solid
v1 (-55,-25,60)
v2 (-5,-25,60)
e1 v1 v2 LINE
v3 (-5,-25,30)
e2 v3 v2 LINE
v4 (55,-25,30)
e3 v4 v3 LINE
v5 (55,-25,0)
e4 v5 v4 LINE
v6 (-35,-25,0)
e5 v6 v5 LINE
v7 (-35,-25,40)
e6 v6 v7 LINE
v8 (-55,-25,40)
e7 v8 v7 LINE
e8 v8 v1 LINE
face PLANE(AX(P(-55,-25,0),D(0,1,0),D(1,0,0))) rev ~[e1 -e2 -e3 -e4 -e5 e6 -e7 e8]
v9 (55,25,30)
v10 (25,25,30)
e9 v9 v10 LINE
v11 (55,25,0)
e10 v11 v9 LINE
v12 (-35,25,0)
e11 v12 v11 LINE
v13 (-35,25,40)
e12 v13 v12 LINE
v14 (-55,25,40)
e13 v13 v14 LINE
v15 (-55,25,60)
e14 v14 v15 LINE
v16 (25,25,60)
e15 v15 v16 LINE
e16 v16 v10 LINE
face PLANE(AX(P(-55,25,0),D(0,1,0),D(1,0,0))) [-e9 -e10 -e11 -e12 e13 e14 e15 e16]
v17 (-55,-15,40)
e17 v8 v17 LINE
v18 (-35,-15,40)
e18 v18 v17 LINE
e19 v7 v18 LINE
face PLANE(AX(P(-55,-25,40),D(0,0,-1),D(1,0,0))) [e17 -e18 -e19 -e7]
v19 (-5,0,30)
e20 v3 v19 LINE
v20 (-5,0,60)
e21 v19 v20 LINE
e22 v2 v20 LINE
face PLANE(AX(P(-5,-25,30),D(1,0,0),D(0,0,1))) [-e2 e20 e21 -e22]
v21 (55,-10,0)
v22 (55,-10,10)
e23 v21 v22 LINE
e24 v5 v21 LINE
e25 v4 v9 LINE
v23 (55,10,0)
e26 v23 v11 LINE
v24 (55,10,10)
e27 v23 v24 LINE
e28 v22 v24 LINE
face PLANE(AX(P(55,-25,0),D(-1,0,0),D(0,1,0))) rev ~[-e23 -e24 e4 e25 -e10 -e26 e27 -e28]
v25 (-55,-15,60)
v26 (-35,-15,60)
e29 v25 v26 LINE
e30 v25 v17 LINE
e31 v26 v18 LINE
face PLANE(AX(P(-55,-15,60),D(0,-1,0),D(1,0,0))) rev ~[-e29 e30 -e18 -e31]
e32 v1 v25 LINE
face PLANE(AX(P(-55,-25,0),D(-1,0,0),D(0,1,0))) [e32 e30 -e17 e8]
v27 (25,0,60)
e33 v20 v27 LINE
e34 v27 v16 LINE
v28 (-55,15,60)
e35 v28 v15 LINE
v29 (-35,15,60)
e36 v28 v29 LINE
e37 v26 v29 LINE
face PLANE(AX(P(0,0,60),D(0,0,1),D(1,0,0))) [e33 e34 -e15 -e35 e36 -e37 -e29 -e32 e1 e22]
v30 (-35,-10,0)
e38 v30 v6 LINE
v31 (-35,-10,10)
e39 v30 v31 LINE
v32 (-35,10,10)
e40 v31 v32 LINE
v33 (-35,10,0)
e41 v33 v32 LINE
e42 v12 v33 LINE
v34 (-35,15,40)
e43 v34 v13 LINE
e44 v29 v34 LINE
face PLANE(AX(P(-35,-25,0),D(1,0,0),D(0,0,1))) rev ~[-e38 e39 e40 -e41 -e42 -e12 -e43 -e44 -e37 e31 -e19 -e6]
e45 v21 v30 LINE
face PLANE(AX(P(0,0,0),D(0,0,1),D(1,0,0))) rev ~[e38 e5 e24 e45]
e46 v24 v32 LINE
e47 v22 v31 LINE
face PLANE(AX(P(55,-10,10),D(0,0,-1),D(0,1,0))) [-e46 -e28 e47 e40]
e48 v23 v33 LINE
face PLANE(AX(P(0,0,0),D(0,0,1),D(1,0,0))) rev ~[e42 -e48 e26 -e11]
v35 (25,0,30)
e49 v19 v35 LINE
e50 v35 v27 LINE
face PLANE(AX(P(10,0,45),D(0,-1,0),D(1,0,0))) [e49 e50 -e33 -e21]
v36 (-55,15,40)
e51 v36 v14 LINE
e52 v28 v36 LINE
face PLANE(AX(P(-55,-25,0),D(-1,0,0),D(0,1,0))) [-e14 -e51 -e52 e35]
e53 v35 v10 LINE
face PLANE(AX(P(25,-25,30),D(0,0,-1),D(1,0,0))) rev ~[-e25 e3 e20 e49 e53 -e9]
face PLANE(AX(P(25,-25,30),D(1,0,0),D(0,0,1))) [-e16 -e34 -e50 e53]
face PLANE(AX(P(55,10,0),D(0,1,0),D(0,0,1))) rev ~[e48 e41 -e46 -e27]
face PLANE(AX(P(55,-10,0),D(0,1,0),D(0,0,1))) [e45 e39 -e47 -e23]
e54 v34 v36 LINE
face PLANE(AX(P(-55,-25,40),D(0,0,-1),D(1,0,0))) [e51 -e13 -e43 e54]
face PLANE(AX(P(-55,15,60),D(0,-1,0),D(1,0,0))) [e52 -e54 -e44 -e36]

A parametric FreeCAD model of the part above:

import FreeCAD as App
import Part
import Sketcher
from FreeCAD import Vector

doc = App.newDocument("Part")
params = doc.addObject("Spreadsheet::Sheet", "Params")
for row, (alias, value) in enumerate([
    ("sketch1_width", "110 mm"),
    ("sketch1_height", "50 mm"),
    ("pad1_length", "60 mm"),
    ("sketch2_width", "30 mm"),
    ("sketch3_width", "20 mm"),
    ("sketch3_height", "40 mm"),
    ("sketch4_width", "30 mm"),
    ("pocket3_length", "25 mm"),
    ("sketch5_width", "20 mm"),
    ("sketch5_height", "10 mm"),
    ("sketch6_width", "20 mm"),
    ("sketch6_height", "30 mm"),
], start=1):
    params.set(f"A{row}", alias)
    params.set(f"B{row}", "=" + value)
    params.setAlias(f"B{row}", alias)

body = doc.addObject("PartDesign::Body", "Body")

sketch1 = body.newObject("Sketcher::SketchObject", "Sketch")
sketch1.AttachmentSupport = (doc.getObject("XY_Plane"), [""])
sketch1.MapMode = "FlatFace"
sketch1.addGeometry([
    Part.LineSegment(Vector(-55, 25, 0), Vector(-55, -25, 0)),
    Part.LineSegment(Vector(-55, -25, 0), Vector(55, -25, 0)),
    Part.LineSegment(Vector(55, -25, 0), Vector(55, 25, 0)),
    Part.LineSegment(Vector(55, 25, 0), Vector(-55, 25, 0)),
], False)
sketch1.addConstraint([
    Sketcher.Constraint("Coincident", 0, 2, 1, 1),
    Sketcher.Constraint("Coincident", 1, 2, 2, 1),
    Sketcher.Constraint("Coincident", 2, 2, 3, 1),
    Sketcher.Constraint("Coincident", 3, 2, 0, 1),
    Sketcher.Constraint("Vertical", 0),
    Sketcher.Constraint("Horizontal", 1),
    Sketcher.Constraint("Vertical", 2),
    Sketcher.Constraint("Horizontal", 3),
    Sketcher.Constraint("Symmetric", 0, 2, 2, 2, -1, 1),
    Sketcher.Constraint("DistanceX", 1, 1, 1, 2, 110.0),
    Sketcher.Constraint("DistanceY", 0, 2, 0, 1, 50.0),
])
sketch1.setExpression("Constraints[9]", "Params.sketch1_width")
sketch1.setExpression("Constraints[10]", "Params.sketch1_height")
pad1 = body.newObject("PartDesign::Pad", "Pad")
pad1.Profile = sketch1
pad1.setExpression("Length", "Params.pad1_length")

sketch2 = body.newObject("Sketcher::SketchObject", "Sketch001")
sketch2.AttachmentSupport = (doc.getObject("XZ_Plane"), [""])
sketch2.MapMode = "FlatFace"
sketch2.AttachmentOffset = App.Placement(Vector(0, 0, 25), App.Rotation())
sketch2.addGeometry([
    Part.LineSegment(Vector(25, 60, 0), Vector(25, 30, 0)),
    Part.LineSegment(Vector(25, 30, 0), Vector(55, 30, 0)),
    Part.LineSegment(Vector(55, 30, 0), Vector(55, 60, 0)),
    Part.LineSegment(Vector(55, 60, 0), Vector(25, 60, 0)),
], False)
sketch2.addConstraint([
    Sketcher.Constraint("Coincident", 0, 2, 1, 1),
    Sketcher.Constraint("Coincident", 1, 2, 2, 1),
    Sketcher.Constraint("Coincident", 2, 2, 3, 1),
    Sketcher.Constraint("Coincident", 3, 2, 0, 1),
    Sketcher.Constraint("Vertical", 0),
    Sketcher.Constraint("Horizontal", 1),
    Sketcher.Constraint("Vertical", 2),
    Sketcher.Constraint("Horizontal", 3),
    Sketcher.Constraint("Equal", 3, 0),
    Sketcher.Constraint("DistanceX", 1, 1, 1, 2, 30.0),
    Sketcher.Constraint("DistanceX", -1, 1, 0, 2, 25.0),
    Sketcher.Constraint("DistanceY", -1, 1, 0, 2, 30.0),
])
sketch2.setExpression("Constraints[9]", "Params.sketch2_width")
pocket1 = body.newObject("PartDesign::Pocket", "Pocket")
pocket1.Profile = sketch2
pocket1.Type = "ThroughAll"

sketch3 = body.newObject("Sketcher::SketchObject", "Sketch002")
sketch3.AttachmentSupport = (doc.getObject("XZ_Plane"), [""])
sketch3.MapMode = "FlatFace"
sketch3.AttachmentOffset = App.Placement(Vector(0, 0, 25), App.Rotation())
sketch3.addGeometry([
    Part.LineSegment(Vector(-55, 40, 0), Vector(-55, 0, 0)),
    Part.LineSegment(Vector(-55, 0, 0), Vector(-35, 0, 0)),
    Part.LineSegment(Vector(-35, 0, 0), Vector(-35, 40, 0)),
    Part.LineSegment(Vector(-35, 40, 0), Vector(-55, 40, 0)),
], False)
sketch3.addConstraint([
    Sketcher.Constraint("Coincident", 0, 2, 1, 1),
    Sketcher.Constraint("Coincident", 1, 2, 2, 1),
    Sketcher.Constraint("Coincident", 2, 2, 3, 1),
    Sketcher.Constraint("Coincident", 3, 2, 0, 1),
    Sketcher.Constraint("Vertical", 0),
    Sketcher.Constraint("Horizontal", 1),
    Sketcher.Constraint("Vertical", 2),
    Sketcher.Constraint("Horizontal", 3),
    Sketcher.Constraint("PointOnObject", 0, 2, -1),
    Sketcher.Constraint("DistanceX", 1, 1, 1, 2, 20.0),
    Sketcher.Constraint("DistanceY", 0, 2, 0, 1, 40.0),
    Sketcher.Constraint("DistanceX", 0, 2, -1, 1, 55.0),
])
sketch3.setExpression("Constraints[9]", "Params.sketch3_width")
sketch3.setExpression("Constraints[10]", "Params.sketch3_height")
pocket2 = body.newObject("PartDesign::Pocket", "Pocket001")
pocket2.Profile = sketch3
pocket2.Type = "ThroughAll"

sketch4 = body.newObject("Sketcher::SketchObject", "Sketch003")
sketch4.AttachmentSupport = (doc.getObject("XZ_Plane"), [""])
sketch4.MapMode = "FlatFace"
sketch4.AttachmentOffset = App.Placement(Vector(0, 0, 25), App.Rotation())
sketch4.addGeometry([
    Part.LineSegment(Vector(-5, 60, 0), Vector(-5, 30, 0)),
    Part.LineSegment(Vector(-5, 30, 0), Vector(25, 30, 0)),
    Part.LineSegment(Vector(25, 30, 0), Vector(25, 60, 0)),
    Part.LineSegment(Vector(25, 60, 0), Vector(-5, 60, 0)),
], False)
sketch4.addConstraint([
    Sketcher.Constraint("Coincident", 0, 2, 1, 1),
    Sketcher.Constraint("Coincident", 1, 2, 2, 1),
    Sketcher.Constraint("Coincident", 2, 2, 3, 1),
    Sketcher.Constraint("Coincident", 3, 2, 0, 1),
    Sketcher.Constraint("Vertical", 0),
    Sketcher.Constraint("Horizontal", 1),
    Sketcher.Constraint("Vertical", 2),
    Sketcher.Constraint("Horizontal", 3),
    Sketcher.Constraint("Equal", 3, 0),
    Sketcher.Constraint("DistanceX", 1, 1, 1, 2, 30.0),
    Sketcher.Constraint("DistanceX", 0, 2, -1, 1, 5.0),
    Sketcher.Constraint("DistanceY", -1, 1, 0, 2, 30.0),
])
sketch4.setExpression("Constraints[9]", "Params.sketch4_width")
pocket3 = body.newObject("PartDesign::Pocket", "Pocket002")
pocket3.Profile = sketch4
pocket3.setExpression("Length", "Params.pocket3_length")

sketch5 = body.newObject("Sketcher::SketchObject", "Sketch004")
sketch5.AttachmentSupport = (doc.getObject("YZ_Plane"), [""])
sketch5.MapMode = "FlatFace"
sketch5.AttachmentOffset = App.Placement(Vector(0, 0, 55), App.Rotation())
sketch5.addGeometry([
    Part.LineSegment(Vector(-10, 10, 0), Vector(-10, 0, 0)),
    Part.LineSegment(Vector(-10, 0, 0), Vector(10, 0, 0)),
    Part.LineSegment(Vector(10, 0, 0), Vector(10, 10, 0)),
    Part.LineSegment(Vector(10, 10, 0), Vector(-10, 10, 0)),
], False)
sketch5.addConstraint([
    Sketcher.Constraint("Coincident", 0, 2, 1, 1),
    Sketcher.Constraint("Coincident", 1, 2, 2, 1),
    Sketcher.Constraint("Coincident", 2, 2, 3, 1),
    Sketcher.Constraint("Coincident", 3, 2, 0, 1),
    Sketcher.Constraint("Vertical", 0),
    Sketcher.Constraint("Horizontal", 1),
    Sketcher.Constraint("Vertical", 2),
    Sketcher.Constraint("Horizontal", 3),
    Sketcher.Constraint("Symmetric", 0, 2, 1, 2, -1, 1),
    Sketcher.Constraint("DistanceX", 1, 1, 1, 2, 20.0),
    Sketcher.Constraint("DistanceY", 0, 2, 0, 1, 10.0),
])
sketch5.setExpression("Constraints[9]", "Params.sketch5_width")
sketch5.setExpression("Constraints[10]", "Params.sketch5_height")
pocket4 = body.newObject("PartDesign::Pocket", "Pocket003")
pocket4.Profile = sketch5
pocket4.Type = "ThroughAll"

sketch6 = body.newObject("Sketcher::SketchObject", "Sketch005")
sketch6.AttachmentSupport = (doc.getObject("XY_Plane"), [""])
sketch6.MapMode = "FlatFace"
sketch6.AttachmentOffset = App.Placement(Vector(0, 0, 60), App.Rotation())
sketch6.addGeometry([
    Part.LineSegment(Vector(-55, 15, 0), Vector(-55, -15, 0)),
    Part.LineSegment(Vector(-55, -15, 0), Vector(-35, -15, 0)),
    Part.LineSegment(Vector(-35, -15, 0), Vector(-35, 15, 0)),
    Part.LineSegment(Vector(-35, 15, 0), Vector(-55, 15, 0)),
], False)
sketch6.addConstraint([
    Sketcher.Constraint("Coincident", 0, 2, 1, 1),
    Sketcher.Constraint("Coincident", 1, 2, 2, 1),
    Sketcher.Constraint("Coincident", 2, 2, 3, 1),
    Sketcher.Constraint("Coincident", 3, 2, 0, 1),
    Sketcher.Constraint("Vertical", 0),
    Sketcher.Constraint("Horizontal", 1),
    Sketcher.Constraint("Vertical", 2),
    Sketcher.Constraint("Horizontal", 3),
    Sketcher.Constraint("DistanceX", 1, 1, 1, 2, 20.0),
    Sketcher.Constraint("DistanceY", 0, 2, 0, 1, 30.0),
    Sketcher.Constraint("DistanceX", 0, 2, -1, 1, 55.0),
    Sketcher.Constraint("DistanceY", 0, 2, -1, 1, 15.0),
])
sketch6.setExpression("Constraints[8]", "Params.sketch6_width")
sketch6.setExpression("Constraints[9]", "Params.sketch6_height")
pocket5 = body.newObject("PartDesign::Pocket", "Pocket004")
pocket5.Profile = sketch6
pocket5.Type = "ThroughAll"

doc.recompute()
